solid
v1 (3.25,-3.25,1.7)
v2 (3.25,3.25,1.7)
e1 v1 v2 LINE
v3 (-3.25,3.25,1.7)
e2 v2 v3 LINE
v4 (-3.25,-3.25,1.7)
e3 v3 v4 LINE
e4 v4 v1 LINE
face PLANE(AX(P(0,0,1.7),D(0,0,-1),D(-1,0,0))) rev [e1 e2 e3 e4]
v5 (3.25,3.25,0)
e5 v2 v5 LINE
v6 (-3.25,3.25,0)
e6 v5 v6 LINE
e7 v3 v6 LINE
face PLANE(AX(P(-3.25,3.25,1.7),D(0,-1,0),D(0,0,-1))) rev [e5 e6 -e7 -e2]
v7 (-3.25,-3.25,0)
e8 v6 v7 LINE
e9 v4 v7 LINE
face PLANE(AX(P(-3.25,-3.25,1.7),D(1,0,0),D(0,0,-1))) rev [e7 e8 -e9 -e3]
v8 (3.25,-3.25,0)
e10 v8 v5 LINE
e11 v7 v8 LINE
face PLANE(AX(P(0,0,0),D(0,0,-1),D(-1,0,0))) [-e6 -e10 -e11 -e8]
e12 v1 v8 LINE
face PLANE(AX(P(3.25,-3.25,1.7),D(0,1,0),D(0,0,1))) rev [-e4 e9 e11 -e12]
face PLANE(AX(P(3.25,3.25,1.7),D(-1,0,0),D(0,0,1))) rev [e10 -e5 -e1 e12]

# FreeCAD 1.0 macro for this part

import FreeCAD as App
import Part
import Sketcher
Q = App.Units.Quantity


def add_polygon(sketch, points):
    """Adds a closed chain of lines whose ends are joined by coincident constraints."""
    first, n = sketch.GeometryCount, len(points)
    for a, b in zip(points, points[1:] + points[:1]):
        sketch.addGeometry(Part.LineSegment(App.Vector(*a, 0), App.Vector(*b, 0)), False)
    for i in range(n):
        sketch.addConstraint(Sketcher.Constraint("Coincident", first + i, 2, first + (i + 1) % n, 1))

doc = App.newDocument("Part")
params = doc.addObject("Spreadsheet::Sheet", "Params")
for row, (alias, value) in enumerate([
    ("sketch1_width", "6.5 mm"),
    ("pad1_length", "1.7 mm"),
], start=1):
    params.set(f"A{row}", alias)
    params.set(f"B{row}", "=" + value)
    params.setAlias(f"B{row}", alias)

body = doc.addObject("PartDesign::Body", "Body")

# Sketch on XY plane
sketch1 = doc.addObject("Sketcher::SketchObject", "Sketch")
body.addObject(sketch1)
sketch1.AttachmentSupport = (doc.XY_Plane, [""])
sketch1.MapMode = "FlatFace"
add_polygon(sketch1, [(-3.25, 3.25), (-3.25, -3.25), (3.25, -3.25), (3.25, 3.25)])  # lines 0-3
sketch1.addConstraint([
    Sketcher.Constraint("Vertical", 0),
    Sketcher.Constraint("Horizontal", 1),
    Sketcher.Constraint("Vertical", 2),
    Sketcher.Constraint("Horizontal", 3),
    Sketcher.Constraint("Symmetric", 0, 2, 2, 2, -1, 1),
    Sketcher.Constraint("Equal", 3, 0),
    Sketcher.Constraint("DistanceX", 1, 1, 1, 2, Q("6.5 mm")),
])
sketch1.setExpression("Constraints[10]", "Params.sketch1_width")
pad1 = doc.addObject("PartDesign::Pad", "Pad")
body.addObject(pad1)
pad1.Profile = sketch1
pad1.setExpression("Length", "Params.pad1_length")

doc.recompute()
